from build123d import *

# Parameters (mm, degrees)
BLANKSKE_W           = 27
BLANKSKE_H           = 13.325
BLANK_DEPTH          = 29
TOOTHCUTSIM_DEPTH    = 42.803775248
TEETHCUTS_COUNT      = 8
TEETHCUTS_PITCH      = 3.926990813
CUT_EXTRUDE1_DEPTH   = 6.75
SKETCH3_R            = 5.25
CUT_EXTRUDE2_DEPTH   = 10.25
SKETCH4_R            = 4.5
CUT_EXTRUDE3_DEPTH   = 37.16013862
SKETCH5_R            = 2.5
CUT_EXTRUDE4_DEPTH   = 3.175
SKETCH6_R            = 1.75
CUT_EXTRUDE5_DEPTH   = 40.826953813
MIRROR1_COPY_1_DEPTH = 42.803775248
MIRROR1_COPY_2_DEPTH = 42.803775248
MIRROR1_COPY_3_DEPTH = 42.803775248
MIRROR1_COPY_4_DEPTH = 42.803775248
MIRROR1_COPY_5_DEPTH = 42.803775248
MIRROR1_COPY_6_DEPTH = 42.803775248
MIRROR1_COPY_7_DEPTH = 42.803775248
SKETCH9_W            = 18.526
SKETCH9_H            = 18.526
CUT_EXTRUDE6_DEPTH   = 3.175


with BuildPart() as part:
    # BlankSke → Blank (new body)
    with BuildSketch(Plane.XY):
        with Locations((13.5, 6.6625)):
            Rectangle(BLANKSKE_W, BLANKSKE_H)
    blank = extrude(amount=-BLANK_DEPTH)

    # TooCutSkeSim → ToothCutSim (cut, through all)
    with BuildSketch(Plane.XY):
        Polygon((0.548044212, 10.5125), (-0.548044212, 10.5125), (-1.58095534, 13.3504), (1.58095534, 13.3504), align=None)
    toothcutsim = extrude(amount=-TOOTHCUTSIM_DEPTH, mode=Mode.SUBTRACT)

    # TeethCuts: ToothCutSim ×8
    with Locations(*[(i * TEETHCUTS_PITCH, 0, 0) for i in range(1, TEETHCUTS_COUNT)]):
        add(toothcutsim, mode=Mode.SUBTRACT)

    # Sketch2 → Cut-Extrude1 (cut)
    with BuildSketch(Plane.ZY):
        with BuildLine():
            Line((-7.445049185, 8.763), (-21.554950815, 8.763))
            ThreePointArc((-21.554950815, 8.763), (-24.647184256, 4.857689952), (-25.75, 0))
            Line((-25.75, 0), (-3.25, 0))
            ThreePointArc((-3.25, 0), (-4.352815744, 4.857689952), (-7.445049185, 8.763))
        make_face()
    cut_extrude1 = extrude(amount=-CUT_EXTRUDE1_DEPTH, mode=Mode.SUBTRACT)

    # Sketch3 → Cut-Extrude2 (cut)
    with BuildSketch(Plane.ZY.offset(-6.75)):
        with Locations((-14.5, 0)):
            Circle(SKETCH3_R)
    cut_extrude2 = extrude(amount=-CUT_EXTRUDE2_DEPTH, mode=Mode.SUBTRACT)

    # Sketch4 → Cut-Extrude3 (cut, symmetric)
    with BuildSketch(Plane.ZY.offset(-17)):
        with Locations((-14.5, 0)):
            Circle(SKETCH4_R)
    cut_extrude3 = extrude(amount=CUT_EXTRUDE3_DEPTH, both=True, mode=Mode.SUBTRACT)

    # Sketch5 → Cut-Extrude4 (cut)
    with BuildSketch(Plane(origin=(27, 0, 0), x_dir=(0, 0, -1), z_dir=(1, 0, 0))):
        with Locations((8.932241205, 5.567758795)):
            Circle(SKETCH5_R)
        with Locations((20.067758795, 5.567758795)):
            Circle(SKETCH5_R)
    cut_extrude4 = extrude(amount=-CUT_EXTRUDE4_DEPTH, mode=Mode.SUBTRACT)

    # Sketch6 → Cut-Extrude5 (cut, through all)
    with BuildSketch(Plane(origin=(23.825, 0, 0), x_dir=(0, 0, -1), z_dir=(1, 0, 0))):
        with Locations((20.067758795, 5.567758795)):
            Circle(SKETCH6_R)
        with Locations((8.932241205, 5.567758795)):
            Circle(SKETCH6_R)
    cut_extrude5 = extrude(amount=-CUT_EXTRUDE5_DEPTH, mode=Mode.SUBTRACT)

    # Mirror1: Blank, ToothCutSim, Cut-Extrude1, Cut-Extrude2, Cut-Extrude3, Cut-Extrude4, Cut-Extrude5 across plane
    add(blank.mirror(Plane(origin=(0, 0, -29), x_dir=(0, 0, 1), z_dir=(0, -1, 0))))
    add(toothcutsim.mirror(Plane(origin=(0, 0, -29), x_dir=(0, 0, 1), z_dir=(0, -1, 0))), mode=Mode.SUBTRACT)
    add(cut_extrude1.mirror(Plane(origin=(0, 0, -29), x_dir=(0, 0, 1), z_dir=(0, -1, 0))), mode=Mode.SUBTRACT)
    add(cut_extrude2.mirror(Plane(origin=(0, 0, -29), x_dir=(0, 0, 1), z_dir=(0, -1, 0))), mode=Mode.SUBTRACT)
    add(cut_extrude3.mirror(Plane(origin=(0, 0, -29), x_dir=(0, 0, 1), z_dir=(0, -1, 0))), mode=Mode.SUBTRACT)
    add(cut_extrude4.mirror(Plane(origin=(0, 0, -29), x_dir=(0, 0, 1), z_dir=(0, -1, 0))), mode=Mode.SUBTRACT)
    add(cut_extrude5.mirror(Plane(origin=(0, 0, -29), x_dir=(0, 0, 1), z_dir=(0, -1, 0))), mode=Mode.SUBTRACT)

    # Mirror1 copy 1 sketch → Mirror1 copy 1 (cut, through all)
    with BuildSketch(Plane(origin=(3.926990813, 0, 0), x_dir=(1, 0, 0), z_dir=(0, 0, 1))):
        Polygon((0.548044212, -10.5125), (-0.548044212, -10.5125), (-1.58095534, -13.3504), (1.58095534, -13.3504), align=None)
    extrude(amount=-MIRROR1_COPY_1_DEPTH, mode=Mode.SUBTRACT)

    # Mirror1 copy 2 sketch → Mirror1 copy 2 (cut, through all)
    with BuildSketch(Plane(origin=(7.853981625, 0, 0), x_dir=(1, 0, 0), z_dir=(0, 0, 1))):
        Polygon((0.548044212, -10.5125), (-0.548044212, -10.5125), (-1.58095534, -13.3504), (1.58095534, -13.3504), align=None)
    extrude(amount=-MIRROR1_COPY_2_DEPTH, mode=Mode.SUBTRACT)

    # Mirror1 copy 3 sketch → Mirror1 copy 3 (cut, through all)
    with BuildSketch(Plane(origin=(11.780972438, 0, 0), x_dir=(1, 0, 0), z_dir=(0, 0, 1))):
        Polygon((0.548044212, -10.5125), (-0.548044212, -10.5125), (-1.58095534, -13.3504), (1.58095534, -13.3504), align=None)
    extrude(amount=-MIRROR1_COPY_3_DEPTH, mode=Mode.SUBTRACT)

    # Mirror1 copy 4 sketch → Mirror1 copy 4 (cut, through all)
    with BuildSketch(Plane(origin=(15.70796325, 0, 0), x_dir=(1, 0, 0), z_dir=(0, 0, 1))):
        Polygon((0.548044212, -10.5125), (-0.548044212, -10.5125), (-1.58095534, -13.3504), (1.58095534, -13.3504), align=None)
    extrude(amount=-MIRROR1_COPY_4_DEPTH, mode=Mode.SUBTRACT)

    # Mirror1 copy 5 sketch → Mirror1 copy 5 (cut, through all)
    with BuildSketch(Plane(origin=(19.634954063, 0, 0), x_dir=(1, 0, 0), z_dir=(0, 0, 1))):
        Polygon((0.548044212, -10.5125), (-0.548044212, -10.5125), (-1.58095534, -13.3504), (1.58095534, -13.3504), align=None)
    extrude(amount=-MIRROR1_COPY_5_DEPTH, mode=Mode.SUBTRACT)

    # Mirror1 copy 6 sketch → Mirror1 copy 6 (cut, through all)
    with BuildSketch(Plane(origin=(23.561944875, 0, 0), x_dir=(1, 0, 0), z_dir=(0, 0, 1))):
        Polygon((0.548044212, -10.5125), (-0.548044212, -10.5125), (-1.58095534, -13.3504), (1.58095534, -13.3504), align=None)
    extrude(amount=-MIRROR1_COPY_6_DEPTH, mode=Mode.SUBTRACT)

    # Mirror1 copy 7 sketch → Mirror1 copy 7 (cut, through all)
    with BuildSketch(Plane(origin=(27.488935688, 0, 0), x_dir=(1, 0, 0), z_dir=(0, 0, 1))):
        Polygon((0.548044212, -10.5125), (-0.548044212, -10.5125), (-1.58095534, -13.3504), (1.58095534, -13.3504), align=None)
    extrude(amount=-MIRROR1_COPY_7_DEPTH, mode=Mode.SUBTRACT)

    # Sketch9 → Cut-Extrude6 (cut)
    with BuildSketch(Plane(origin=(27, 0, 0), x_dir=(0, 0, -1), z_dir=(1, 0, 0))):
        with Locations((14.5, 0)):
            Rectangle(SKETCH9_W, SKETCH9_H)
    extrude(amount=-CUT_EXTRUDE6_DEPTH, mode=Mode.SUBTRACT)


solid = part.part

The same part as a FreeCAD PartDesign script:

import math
import FreeCAD as App
import Part
import Sketcher
from FreeCAD import Vector
Q = App.Units.Quantity


def add_polygon(sketch, points):
    """Adds a closed chain of lines whose ends are joined by coincident constraints."""
    first, n = sketch.GeometryCount, len(points)
    for a, b in zip(points, points[1:] + points[:1]):
        sketch.addGeometry(Part.LineSegment(App.Vector(*a, 0), App.Vector(*b, 0)), False)
    for i in range(n):
        sketch.addConstraint(Sketcher.Constraint("Coincident", first + i, 2, first + (i + 1) % n, 1))

doc = App.newDocument("Part")
body = doc.addObject("PartDesign::Body", "Body")

sketch1 = doc.addObject("Sketcher::SketchObject", "Sketch")
body.addObject(sketch1)
sketch1.AttachmentSupport = (doc.XY_Plane, [""])
sketch1.MapMode = "FlatFace"
add_polygon(sketch1, [(0, 13), (0, 0), (27, 0), (27, 13)])
sketch1.addConstraint(Sketcher.Constraint("Vertical", 0))
sketch1.addConstraint(Sketcher.Constraint("Horizontal", 1))
sketch1.addConstraint(Sketcher.Constraint("Vertical", 2))
sketch1.addConstraint(Sketcher.Constraint("Horizontal", 3))
sketch1.addConstraint(Sketcher.Constraint("Coincident", 0, 2, -1, 1))
sketch1.addConstraint(Sketcher.Constraint("DistanceX", 1, 1, 1, 2, Q("27 mm")))
sketch1.addConstraint(Sketcher.Constraint("DistanceY", 0, 2, 0, 1, Q("13.325 mm")))
pad1 = doc.addObject("PartDesign::Pad", "Pad")
body.addObject(pad1)
pad1.Profile = sketch1
pad1.Length = 29
pad1.Reversed = True

sketch2 = doc.addObject("Sketcher::SketchObject", "Sketch001")
body.addObject(sketch2)
sketch2.AttachmentSupport = (doc.XY_Plane, [""])
sketch2.MapMode = "FlatFace"
add_polygon(sketch2, [(-0.5, 10.5), (0.5, 10.5), (1.6, 13.4), (-1.6, 13.4)])
sketch2.addConstraint(Sketcher.Constraint("Horizontal", 0))
sketch2.addConstraint(Sketcher.Constraint("Horizontal", 2))
sketch2.addConstraint(Sketcher.Constraint("Equal", 1, 3))
sketch2.addConstraint(Sketcher.Constraint("Angle", 1, Q("70 deg")))
sketch2.addConstraint(Sketcher.Constraint("DistanceX", 2, 2, 0, 2, Q("2.129 mm")))
sketch2.addConstraint(Sketcher.Constraint("DistanceX", 0, 1, 0, 2, Q("1.096088 mm")))
sketch2.addConstraint(Sketcher.Constraint("DistanceY", -1, 1, 0, 2, Q("10.5125 mm")))
sketch2.addConstraint(Sketcher.Constraint("DistanceX", -1, 1, 0, 2, Q("0.548044 mm")))
pocket1 = doc.addObject("PartDesign::Pocket", "Pocket")
body.addObject(pocket1)
pocket1.Profile = sketch2
pocket1.Type = "ThroughAll"
doc.recompute()

linearpattern = doc.addObject("PartDesign::LinearPattern", "LinearPattern")
body.addObject(linearpattern)
linearpattern.Originals = [pocket1]
linearpattern.Direction = (doc.X_Axis, [""])
linearpattern.Mode = "offset"
linearpattern.Offset = 3.926991
linearpattern.Occurrences = 8
body.Tip = linearpattern

sketch3 = doc.addObject("Sketcher::SketchObject", "Sketch002")
body.addObject(sketch3)
sketch3.AttachmentSupport = (doc.YZ_Plane, [""])
sketch3.MapMode = "FlatFace"
sketch3.addGeometry(Part.LineSegment(Vector(9, -7, 0), Vector(9, -22, 0)), False)
sketch3.addGeometry(Part.ArcOfCircle(Part.Circle(Vector(0, -14, 0), Vector(0, 0, 1), 11), math.radians(-90), math.radians(-39)), False)
sketch3.addGeometry(Part.LineSegment(Vector(0, -26, 0), Vector(0, -3, 0)), False)
sketch3.addGeometry(Part.ArcOfCircle(Part.Circle(Vector(0, -15, 0), Vector(0, 0, 1), 11), math.radians(39), math.radians(90)), False)
sketch3.addConstraint(Sketcher.Constraint("Coincident", 0, 2, 1, 2))
sketch3.addConstraint(Sketcher.Constraint("Coincident", 1, 1, 2, 1))
sketch3.addConstraint(Sketcher.Constraint("Coincident", 2, 2, 3, 2))
sketch3.addConstraint(Sketcher.Constraint("Coincident", 3, 1, 0, 1))
sketch3.addConstraint(Sketcher.Constraint("Vertical", 0))
sketch3.addConstraint(Sketcher.Constraint("Vertical", 2))
sketch3.addConstraint(Sketcher.Constraint("Coincident", 3, 3, 1, 3))
sketch3.addConstraint(Sketcher.Constraint("Equal", 1, 3))
sketch3.addConstraint(Sketcher.Constraint("PointOnObject", 1, 3, -2))
sketch3.addConstraint(Sketcher.Constraint("PointOnObject", 1, 1, -2))
sketch3.addConstraint(Sketcher.Constraint("Radius", 1, Q("11.25 mm")))
sketch3.addConstraint(Sketcher.Constraint("DistanceY", 1, 3, -1, 1, Q("14.5 mm")))
sketch3.addConstraint(Sketcher.Constraint("DistanceY", 0, 2, 0, 1, Q("14.109902 mm")))
pocket2 = doc.addObject("PartDesign::Pocket", "Pocket001")
body.addObject(pocket2)
pocket2.Profile = sketch3
pocket2.Length = 6.75
pocket2.Reversed = True

sketch4 = doc.addObject("Sketcher::SketchObject", "Sketch003")
body.addObject(sketch4)
sketch4.AttachmentSupport = (doc.YZ_Plane, [""])
sketch4.MapMode = "FlatFace"
sketch4.AttachmentOffset = App.Placement(Vector(0, 0, 6.75), App.Rotation())
sketch4.addGeometry(Part.Circle(Vector(0, -14, 0), Vector(0, 0, 1), 5), False)
sketch4.addConstraint(Sketcher.Constraint("PointOnObject", 0, 3, -2))
sketch4.addConstraint(Sketcher.Constraint("Diameter", 0, Q("10.5 mm")))
sketch4.addConstraint(Sketcher.Constraint("DistanceY", 0, 3, -1, 1, Q("14.5 mm")))
pocket3 = doc.addObject("PartDesign::Pocket", "Pocket002")
body.addObject(pocket3)
pocket3.Profile = sketch4
pocket3.Length = 10.25
pocket3.Reversed = True

sketch5 = doc.addObject("Sketcher::SketchObject", "Sketch004")
body.addObject(sketch5)
sketch5.AttachmentSupport = (doc.YZ_Plane, [""])
sketch5.MapMode = "FlatFace"
sketch5.AttachmentOffset = App.Placement(Vector(0, 0, 17), App.Rotation())
sketch5.addGeometry(Part.Circle(Vector(0, -14.5, 0), Vector(0, 0, 1), 4.5), False)
sketch5.addConstraint(Sketcher.Constraint("PointOnObject", 0, 3, -2))
sketch5.addConstraint(Sketcher.Constraint("Diameter", 0, Q("9 mm")))
sketch5.addConstraint(Sketcher.Constraint("DistanceY", 0, 3, -1, 1, Q("14.5 mm")))
pocket4 = doc.addObject("PartDesign::Pocket", "Pocket003")
body.addObject(pocket4)
pocket4.Profile = sketch5
pocket4.Length = 74.320277
pocket4.Midplane = True

sketch6 = doc.addObject("Sketcher::SketchObject", "Sketch005")
body.addObject(sketch6)
sketch6.AttachmentSupport = (doc.YZ_Plane, [""])
sketch6.MapMode = "FlatFace"
sketch6.AttachmentOffset = App.Placement(Vector(0, 0, 27), App.Rotation())
sketch6.addGeometry(Part.Circle(Vector(5.6, -8.9, 0), Vector(0, 0, 1), 2.5), False)
sketch6.addGeometry(Part.Circle(Vector(5.6, -20.1, 0), Vector(0, 0, 1), 2.5), False)
sketch6.addConstraint(Sketcher.Constraint("Equal", 0, 1))
sketch6.addConstraint(Sketcher.Constraint("Vertical", 0, 3, 1, 3))
sketch6.addConstraint(Sketcher.Constraint("Diameter", 0, Q("5 mm")))
sketch6.addConstraint(Sketcher.Constraint("DistanceX", -1, 1, 0, 3, Q("5.567759 mm")))
sketch6.addConstraint(Sketcher.Constraint("DistanceY", 0, 3, -1, 1, Q("8.932241 mm")))
sketch6.addConstraint(Sketcher.Constraint("DistanceY", 1, 3, -1, 1, Q("20.067759 mm")))
pocket5 = doc.addObject("PartDesign::Pocket", "Pocket004")
body.addObject(pocket5)
pocket5.Profile = sketch6
pocket5.Length = 3.175

sketch7 = doc.addObject("Sketcher::SketchObject", "Sketch006")
body.addObject(sketch7)
sketch7.AttachmentSupport = (doc.YZ_Plane, [""])
sketch7.MapMode = "FlatFace"
sketch7.AttachmentOffset = App.Placement(Vector(0, 0, 23.825), App.Rotation())
sketch7.addGeometry(Part.Circle(Vector(5.6, -20.1, 0), Vector(0, 0, 1), 1.8), False)
sketch7.addGeometry(Part.Circle(Vector(5.6, -8.9, 0), Vector(0, 0, 1), 1.8), False)
sketch7.addConstraint(Sketcher.Constraint("Equal", 0, 1))
sketch7.addConstraint(Sketcher.Constraint("Vertical", 0, 3, 1, 3))
sketch7.addConstraint(Sketcher.Constraint("Diameter", 0, Q("3.5 mm")))
sketch7.addConstraint(Sketcher.Constraint("DistanceX", -1, 1, 0, 3, Q("5.567759 mm")))
sketch7.addConstraint(Sketcher.Constraint("DistanceY", 0, 3, -1, 1, Q("20.067759 mm")))
sketch7.addConstraint(Sketcher.Constraint("DistanceY", 1, 3, -1, 1, Q("8.932241 mm")))
pocket6 = doc.addObject("PartDesign::Pocket", "Pocket005")
body.addObject(pocket6)
pocket6.Profile = sketch7
pocket6.Type = "ThroughAll"
doc.recompute()

mirrored = doc.addObject("PartDesign::Mirrored", "Mirrored")
body.addObject(mirrored)
mirrored.Originals = [pad1, pocket1, pocket2, pocket3, pocket4, pocket5, pocket6]
mirrored.MirrorPlane = (doc.XZ_Plane, [""])
body.Tip = mirrored

sketch8 = doc.addObject("Sketcher::SketchObject", "Sketch007")
body.addObject(sketch8)
sketch8.AttachmentSupport = (doc.XY_Plane, [""])
sketch8.MapMode = "FlatFace"
add_polygon(sketch8, [(4.5, -10.5), (3.4, -10.5), (2.3, -13.4), (5.5, -13.4)])
sketch8.addConstraint(Sketcher.Constraint("Horizontal", 0))
sketch8.addConstraint(Sketcher.Constraint("Horizontal", 2))
sketch8.addConstraint(Sketcher.Constraint("Equal", 1, 3))
sketch8.addConstraint(Sketcher.Constraint("Angle", 1, Q("-110 deg")))
sketch8.addConstraint(Sketcher.Constraint("DistanceX", 0, 2, 2, 2, Q("2.129 mm")))
sketch8.addConstraint(Sketcher.Constraint("DistanceX", 0, 2, 0, 1, Q("1.096088 mm")))
sketch8.addConstraint(Sketcher.Constraint("DistanceY", 0, 2, -1, 1, Q("10.5125 mm")))
sketch8.addConstraint(Sketcher.Constraint("DistanceX", -1, 1, 0, 2, Q("3.378947 mm")))
pocket7 = doc.addObject("PartDesign::Pocket", "Pocket006")
body.addObject(pocket7)
pocket7.Profile = sketch8
pocket7.Type = "ThroughAll"

sketch9 = doc.addObject("Sketcher::SketchObject", "Sketch008")
body.addObject(sketch9)
sketch9.AttachmentSupport = (doc.XY_Plane, [""])
sketch9.MapMode = "FlatFace"
add_polygon(sketch9, [(8.4, -10.5), (7.3, -10.5), (6.3, -13.4), (9.4, -13.4)])
sketch9.addConstraint(Sketcher.Constraint("Horizontal", 0))
sketch9.addConstraint(Sketcher.Constraint("Horizontal", 2))
sketch9.addConstraint(Sketcher.Constraint("Equal", 1, 3))
sketch9.addConstraint(Sketcher.Constraint("Angle", 1, Q("-110 deg")))
sketch9.addConstraint(Sketcher.Constraint("DistanceX", 0, 2, 2, 2, Q("2.129 mm")))
sketch9.addConstraint(Sketcher.Constraint("DistanceX", 0, 2, 0, 1, Q("1.096088 mm")))
sketch9.addConstraint(Sketcher.Constraint("DistanceY", 0, 2, -1, 1, Q("10.5125 mm")))
sketch9.addConstraint(Sketcher.Constraint("DistanceX", -1, 1, 0, 2, Q("7.305937 mm")))
pocket8 = doc.addObject("PartDesign::Pocket", "Pocket007")
body.addObject(pocket8)
pocket8.Profile = sketch9
pocket8.Type = "ThroughAll"

sketch10 = doc.addObject("Sketcher::SketchObject", "Sketch009")
body.addObject(sketch10)
sketch10.AttachmentSupport = (doc.XY_Plane, [""])
sketch10.MapMode = "FlatFace"
add_polygon(sketch10, [(12.3, -10.5), (11.2, -10.5), (10.2, -13.4), (13.4, -13.4)])
sketch10.addConstraint(Sketcher.Constraint("Horizontal", 0))
sketch10.addConstraint(Sketcher.Constraint("Horizontal", 2))
sketch10.addConstraint(Sketcher.Constraint("Equal", 1, 3))
sketch10.addConstraint(Sketcher.Constraint("Angle", 1, Q("-110 deg")))
sketch10.addConstraint(Sketcher.Constraint("DistanceX", 0, 2, 2, 2, Q("2.129 mm")))
sketch10.addConstraint(Sketcher.Constraint("DistanceX", 0, 2, 0, 1, Q("1.096088 mm")))
sketch10.addConstraint(Sketcher.Constraint("DistanceY", 0, 2, -1, 1, Q("10.5125 mm")))
sketch10.addConstraint(Sketcher.Constraint("DistanceX", -1, 1, 0, 2, Q("11.232928 mm")))
pocket9 = doc.addObject("PartDesign::Pocket", "Pocket008")
body.addObject(pocket9)
pocket9.Profile = sketch10
pocket9.Type = "ThroughAll"

sketch11 = doc.addObject("Sketcher::SketchObject", "Sketch010")
body.addObject(sketch11)
sketch11.AttachmentSupport = (doc.XY_Plane, [""])
sketch11.MapMode = "FlatFace"
add_polygon(sketch11, [(16.3, -10.5), (15.2, -10.5), (14.1, -13.4), (17.3, -13.4)])
sketch11.addConstraint(Sketcher.Constraint("Horizontal", 0))
sketch11.addConstraint(Sketcher.Constraint("Horizontal", 2))
sketch11.addConstraint(Sketcher.Constraint("Equal", 1, 3))
sketch11.addConstraint(Sketcher.Constraint("Angle", 1, Q("-110 deg")))
sketch11.addConstraint(Sketcher.Constraint("DistanceX", 0, 2, 2, 2, Q("2.129 mm")))
sketch11.addConstraint(Sketcher.Constraint("DistanceX", 0, 2, 0, 1, Q("1.096088 mm")))
sketch11.addConstraint(Sketcher.Constraint("DistanceY", 0, 2, -1, 1, Q("10.5125 mm")))
sketch11.addConstraint(Sketcher.Constraint("DistanceX", -1, 1, 0, 2, Q("15.159919 mm")))
pocket10 = doc.addObject("PartDesign::Pocket", "Pocket009")
body.addObject(pocket10)
pocket10.Profile = sketch11
pocket10.Type = "ThroughAll"

sketch12 = doc.addObject("Sketcher::SketchObject", "Sketch011")
body.addObject(sketch12)
sketch12.AttachmentSupport = (doc.XY_Plane, [""])
sketch12.MapMode = "FlatFace"
add_polygon(sketch12, [(20.2, -10.5), (19.1, -10.5), (18.1, -13.4), (21.2, -13.4)])
sketch12.addConstraint(Sketcher.Constraint("Horizontal", 0))
sketch12.addConstraint(Sketcher.Constraint("Horizontal", 2))
sketch12.addConstraint(Sketcher.Constraint("Equal", 1, 3))
sketch12.addConstraint(Sketcher.Constraint("Angle", 1, Q("-110 deg")))
sketch12.addConstraint(Sketcher.Constraint("DistanceX", -1, 1, 1, 2, Q("18.053999 mm")))
sketch12.addConstraint(Sketcher.Constraint("DistanceX", -1, 1, 3, 2, Q("20.182998 mm")))
sketch12.addConstraint(Sketcher.Constraint("DistanceX", 0, 2, 0, 1, Q("1.096088 mm")))
sketch12.addConstraint(Sketcher.Constraint("DistanceY", 0, 2, -1, 1, Q("10.5125 mm")))
pocket11 = doc.addObject("PartDesign::Pocket", "Pocket010")
body.addObject(pocket11)
pocket11.Profile = sketch12
pocket11.Type = "ThroughAll"

sketch13 = doc.addObject("Sketcher::SketchObject", "Sketch012")
body.addObject(sketch13)
sketch13.AttachmentSupport = (doc.XY_Plane, [""])
sketch13.MapMode = "FlatFace"
add_polygon(sketch13, [(24.1, -10.5), (23, -10.5), (22, -13.4), (25.1, -13.4)])
sketch13.addConstraint(Sketcher.Constraint("Horizontal", 0))
sketch13.addConstraint(Sketcher.Constraint("Horizontal", 2))
sketch13.addConstraint(Sketcher.Constraint("Equal", 1, 3))
sketch13.addConstraint(Sketcher.Constraint("Angle", 1, Q("-110 deg")))
sketch13.addConstraint(Sketcher.Constraint("DistanceX", 0, 2, 2, 2, Q("2.129 mm")))
sketch13.addConstraint(Sketcher.Constraint("DistanceX", 0, 2, 0, 1, Q("1.096088 mm")))
sketch13.addConstraint(Sketcher.Constraint("DistanceX", -1, 1, 0, 2, Q("23.013901 mm")))
sketch13.addConstraint(Sketcher.Constraint("DistanceY", 0, 2, -1, 1, Q("10.5125 mm")))
pocket12 = doc.addObject("PartDesign::Pocket", "Pocket011")
body.addObject(pocket12)
pocket12.Profile = sketch13
pocket12.Type = "ThroughAll"

sketch14 = doc.addObject("Sketcher::SketchObject", "Sketch013")
body.addObject(sketch14)
sketch14.AttachmentSupport = (doc.XY_Plane, [""])
sketch14.MapMode = "FlatFace"
add_polygon(sketch14, [(28, -10.5), (26.9, -10.5), (25.9, -13.4), (29.1, -13.4)])
sketch14.addConstraint(Sketcher.Constraint("Horizontal", 0))
sketch14.addConstraint(Sketcher.Constraint("Horizontal", 2))
sketch14.addConstraint(Sketcher.Constraint("Equal", 1, 3))
sketch14.addConstraint(Sketcher.Constraint("Angle", 1, Q("-110 deg")))
sketch14.addConstraint(Sketcher.Constraint("DistanceX", 0, 2, 2, 2, Q("2.129 mm")))
sketch14.addConstraint(Sketcher.Constraint("DistanceX", 0, 2, 0, 1, Q("1.096088 mm")))
sketch14.addConstraint(Sketcher.Constraint("DistanceY", 0, 2, -1, 1, Q("10.5125 mm")))
sketch14.addConstraint(Sketcher.Constraint("DistanceX", -1, 1, 0, 2, Q("26.940891 mm")))
pocket13 = doc.addObject("PartDesign::Pocket", "Pocket012")
body.addObject(pocket13)
pocket13.Profile = sketch14
pocket13.Type = "ThroughAll"

sketch15 = doc.addObject("Sketcher::SketchObject", "Sketch014")
body.addObject(sketch15)
sketch15.AttachmentSupport = (doc.YZ_Plane, [""])
sketch15.MapMode = "FlatFace"
sketch15.AttachmentOffset = App.Placement(Vector(0, 0, 27), App.Rotation())
add_polygon(sketch15, [(9, -5), (-9, -5), (-9, -24), (9, -24)])
sketch15.addConstraint(Sketcher.Constraint("Horizontal", 0))
sketch15.addConstraint(Sketcher.Constraint("Vertical", 1))
sketch15.addConstraint(Sketcher.Constraint("Horizontal", 2))
sketch15.addConstraint(Sketcher.Constraint("Vertical", 3))
sketch15.addConstraint(Sketcher.Constraint("Equal", 2, 1))
sketch15.addConstraint(Sketcher.Constraint("DistanceX", 0, 2, 0, 1, Q("18.526 mm")))
sketch15.addConstraint(Sketcher.Constraint("DistanceX", 0, 2, -1, 1, Q("9.263 mm")))
sketch15.addConstraint(Sketcher.Constraint("DistanceY", 0, 2, -1, 1, Q("5.237 mm")))
pocket14 = doc.addObject("PartDesign::Pocket", "Pocket013")
body.addObject(pocket14)
pocket14.Profile = sketch15
pocket14.Length = 3.175

doc.recompute()
